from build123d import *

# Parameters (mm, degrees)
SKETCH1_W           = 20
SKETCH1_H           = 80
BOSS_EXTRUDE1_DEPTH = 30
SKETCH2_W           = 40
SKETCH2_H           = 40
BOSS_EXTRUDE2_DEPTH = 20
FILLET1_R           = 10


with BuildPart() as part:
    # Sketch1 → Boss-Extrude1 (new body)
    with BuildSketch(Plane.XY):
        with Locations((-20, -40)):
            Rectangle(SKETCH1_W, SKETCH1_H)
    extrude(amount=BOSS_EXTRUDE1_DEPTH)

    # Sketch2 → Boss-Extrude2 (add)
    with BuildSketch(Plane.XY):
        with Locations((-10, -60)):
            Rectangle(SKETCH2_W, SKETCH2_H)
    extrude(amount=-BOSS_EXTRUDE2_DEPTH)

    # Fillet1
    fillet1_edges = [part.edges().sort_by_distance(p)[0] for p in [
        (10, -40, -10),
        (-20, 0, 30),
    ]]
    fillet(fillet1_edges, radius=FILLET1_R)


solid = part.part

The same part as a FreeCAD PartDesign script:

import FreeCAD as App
import Part
import Sketcher

V = App.Vector
Q = App.Units.Quantity


def edges_at(feature, points):
    """Names of the edges that pass closest to the given points."""
    edges = feature.Shape.Edges
    near = lambda p: min(range(len(edges)), key=lambda i: edges[i].distToShape(Part.Vertex(*p))[0])
    return sorted({f"Edge{near(p) + 1}" for p in points})


def add_polygon(sketch, points):
    """Adds a closed chain of lines whose ends are joined by coincident constraints."""
    first, n = sketch.GeometryCount, len(points)
    for a, b in zip(points, points[1:] + points[:1]):
        sketch.addGeometry(Part.LineSegment(App.Vector(*a, 0), App.Vector(*b, 0)), False)
    for i in range(n):
        sketch.addConstraint(Sketcher.Constraint("Coincident", first + i, 2, first + (i + 1) % n, 1))

doc = App.newDocument("Part")
body = doc.addObject("PartDesign::Body", "Body")

# Sketch on XY plane
sketch1 = body.newObject("Sketcher::SketchObject", "Sketch")
sketch1.AttachmentSupport = (doc.getObject("XY_Plane"), [""])
sketch1.MapMode = "FlatFace"
add_polygon(sketch1, [(-30, 0), (-30, -80), (-10, -80), (-10, 0)])  # lines 0-3
sketch1.addConstraint([
    Sketcher.Constraint("Vertical", 0),
    Sketcher.Constraint("Horizontal", 1),
    Sketcher.Constraint("Vertical", 2),
    Sketcher.Constraint("Horizontal", 3),
    Sketcher.Constraint("PointOnObject", 2, 2, -1),
    Sketcher.Constraint("DistanceX", 1, 1, 1, 2, Q("20 mm")),
    Sketcher.Constraint("DistanceY", 0, 2, 0, 1, Q("80 mm")),
    Sketcher.Constraint("DistanceX", 0, 2, -1, 1, Q("30 mm")),
])
pad1 = body.newObject("PartDesign::Pad", "Pad")
pad1.Profile = sketch1
pad1.Length = 30

# Sketch on XY plane
sketch2 = body.newObject("Sketcher::SketchObject", "Sketch001")
sketch2.AttachmentSupport = (doc.getObject("XY_Plane"), [""])
sketch2.MapMode = "FlatFace"
add_polygon(sketch2, [(-30, -40), (-30, -80), (10, -80), (10, -40)])  # lines 0-3
sketch2.addConstraint([
    Sketcher.Constraint("Vertical", 0),
    Sketcher.Constraint("Horizontal", 1),
    Sketcher.Constraint("Vertical", 2),
    Sketcher.Constraint("Horizontal", 3),
    Sketcher.Constraint("Equal", 3, 0),
    Sketcher.Constraint("DistanceX", 1, 1, 1, 2, Q("40 mm")),
    Sketcher.Constraint("DistanceX", 0, 2, -1, 1, Q("30 mm")),
    Sketcher.Constraint("DistanceY", 0, 2, -1, 1, Q("80 mm")),
])
pad2 = body.newObject("PartDesign::Pad", "Pad001")
pad2.Profile = sketch2
pad2.Length = 20
pad2.Reversed = True
doc.recompute()

fillet = body.newObject("PartDesign::Fillet", "Fillet")
fillet.Base = (pad2, edges_at(pad2, [(10, -40, -10), (-20, 0, 30)]))
fillet.Radius = 10

doc.recompute()
